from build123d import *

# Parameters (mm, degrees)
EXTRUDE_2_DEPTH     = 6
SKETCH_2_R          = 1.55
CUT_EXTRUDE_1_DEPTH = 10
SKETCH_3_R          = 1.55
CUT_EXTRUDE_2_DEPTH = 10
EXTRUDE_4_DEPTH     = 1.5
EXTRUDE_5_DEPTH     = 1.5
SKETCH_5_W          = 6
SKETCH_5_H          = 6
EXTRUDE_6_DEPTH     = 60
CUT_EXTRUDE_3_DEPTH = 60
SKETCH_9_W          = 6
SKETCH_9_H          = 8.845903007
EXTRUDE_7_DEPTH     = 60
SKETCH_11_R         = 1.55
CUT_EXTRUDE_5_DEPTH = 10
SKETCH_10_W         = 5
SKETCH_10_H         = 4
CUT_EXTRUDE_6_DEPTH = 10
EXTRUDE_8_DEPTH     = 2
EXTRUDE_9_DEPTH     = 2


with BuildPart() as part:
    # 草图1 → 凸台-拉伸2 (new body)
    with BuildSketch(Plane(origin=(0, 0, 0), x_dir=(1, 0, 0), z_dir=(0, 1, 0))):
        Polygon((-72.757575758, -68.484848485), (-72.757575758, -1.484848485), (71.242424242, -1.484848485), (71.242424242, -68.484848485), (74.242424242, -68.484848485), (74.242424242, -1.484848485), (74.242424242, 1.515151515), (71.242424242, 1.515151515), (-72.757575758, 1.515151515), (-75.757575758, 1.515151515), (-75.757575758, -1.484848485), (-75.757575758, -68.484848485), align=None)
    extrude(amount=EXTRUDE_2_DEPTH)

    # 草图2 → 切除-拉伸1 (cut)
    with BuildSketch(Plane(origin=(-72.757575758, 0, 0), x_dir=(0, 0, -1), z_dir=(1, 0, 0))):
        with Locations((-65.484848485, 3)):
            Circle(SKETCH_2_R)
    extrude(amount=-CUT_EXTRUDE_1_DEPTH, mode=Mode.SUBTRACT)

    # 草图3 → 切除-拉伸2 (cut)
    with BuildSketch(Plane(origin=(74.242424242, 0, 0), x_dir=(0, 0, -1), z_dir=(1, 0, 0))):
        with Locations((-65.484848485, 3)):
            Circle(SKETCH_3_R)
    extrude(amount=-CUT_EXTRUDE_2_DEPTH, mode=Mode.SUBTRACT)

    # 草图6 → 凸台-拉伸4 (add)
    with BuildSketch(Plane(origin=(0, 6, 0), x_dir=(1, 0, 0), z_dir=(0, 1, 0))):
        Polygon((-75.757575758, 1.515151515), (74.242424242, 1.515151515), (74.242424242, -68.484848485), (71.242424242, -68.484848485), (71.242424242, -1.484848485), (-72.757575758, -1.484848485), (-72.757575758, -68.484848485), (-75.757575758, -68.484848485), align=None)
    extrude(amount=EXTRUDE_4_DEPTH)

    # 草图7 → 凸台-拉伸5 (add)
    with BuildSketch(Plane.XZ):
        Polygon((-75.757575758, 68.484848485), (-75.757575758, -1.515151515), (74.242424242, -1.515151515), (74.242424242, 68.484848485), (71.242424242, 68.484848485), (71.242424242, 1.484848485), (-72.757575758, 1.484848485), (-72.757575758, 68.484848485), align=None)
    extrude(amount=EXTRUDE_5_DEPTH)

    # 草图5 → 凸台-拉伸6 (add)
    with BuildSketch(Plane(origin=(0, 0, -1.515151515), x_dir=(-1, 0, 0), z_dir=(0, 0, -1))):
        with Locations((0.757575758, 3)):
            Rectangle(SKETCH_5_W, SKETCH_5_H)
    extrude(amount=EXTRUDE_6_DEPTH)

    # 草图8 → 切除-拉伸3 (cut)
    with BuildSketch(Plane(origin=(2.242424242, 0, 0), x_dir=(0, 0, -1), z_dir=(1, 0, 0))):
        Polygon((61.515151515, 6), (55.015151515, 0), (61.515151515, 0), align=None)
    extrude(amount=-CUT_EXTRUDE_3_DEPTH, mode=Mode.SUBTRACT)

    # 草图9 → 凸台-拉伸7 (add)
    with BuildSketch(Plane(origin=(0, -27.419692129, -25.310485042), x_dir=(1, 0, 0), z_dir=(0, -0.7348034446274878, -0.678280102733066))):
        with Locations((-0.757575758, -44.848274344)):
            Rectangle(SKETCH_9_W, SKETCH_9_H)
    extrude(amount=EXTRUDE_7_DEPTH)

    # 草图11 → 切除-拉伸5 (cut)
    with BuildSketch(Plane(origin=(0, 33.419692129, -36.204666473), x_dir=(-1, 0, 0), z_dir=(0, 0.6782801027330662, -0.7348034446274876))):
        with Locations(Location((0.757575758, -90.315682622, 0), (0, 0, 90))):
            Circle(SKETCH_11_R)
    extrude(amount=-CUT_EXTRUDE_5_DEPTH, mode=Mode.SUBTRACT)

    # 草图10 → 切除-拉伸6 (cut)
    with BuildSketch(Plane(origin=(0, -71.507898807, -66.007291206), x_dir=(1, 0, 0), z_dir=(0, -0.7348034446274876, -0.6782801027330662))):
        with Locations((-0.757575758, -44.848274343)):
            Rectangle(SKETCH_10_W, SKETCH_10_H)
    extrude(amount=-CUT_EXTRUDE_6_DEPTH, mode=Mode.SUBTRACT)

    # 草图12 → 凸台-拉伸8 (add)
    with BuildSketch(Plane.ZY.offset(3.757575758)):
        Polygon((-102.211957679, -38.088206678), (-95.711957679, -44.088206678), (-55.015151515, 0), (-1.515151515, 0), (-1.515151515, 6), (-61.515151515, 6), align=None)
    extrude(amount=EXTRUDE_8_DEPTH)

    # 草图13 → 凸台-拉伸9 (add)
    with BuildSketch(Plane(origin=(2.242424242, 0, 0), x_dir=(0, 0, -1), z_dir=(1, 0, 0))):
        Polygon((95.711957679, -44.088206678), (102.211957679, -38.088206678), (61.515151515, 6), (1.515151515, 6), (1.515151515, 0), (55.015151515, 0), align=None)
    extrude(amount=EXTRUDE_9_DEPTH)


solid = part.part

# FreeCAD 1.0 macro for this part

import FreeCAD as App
import Part
import Sketcher

doc = App.newDocument("Part")
body = doc.addObject("PartDesign::Body", "Body")

# Sketch on XZ plane
sketch1 = doc.addObject("Sketcher::SketchObject", "Sketch")
body.addObject(sketch1)
sketch1.AttachmentSupport = (doc.XZ_Plane, [""])
sketch1.MapMode = "FlatFace"
sketch1.addGeometry([
    Part.LineSegment(App.Vector(-72.8, 68.5, 0), App.Vector(-72.8, 1.5, 0)),  # 0
    Part.LineSegment(App.Vector(-72.8, 1.5, 0), App.Vector(71.2, 1.5, 0)),  # 1
    Part.LineSegment(App.Vector(71.2, 1.5, 0), App.Vector(71.2, 68.5, 0)),  # 2
    Part.LineSegment(App.Vector(71.2, 68.5, 0), App.Vector(74.2, 68.5, 0)),  # 3
    Part.LineSegment(App.Vector(74.2, 68.5, 0), App.Vector(74.2, -1.5, 0)),  # 4
    Part.LineSegment(App.Vector(74.2, -1.5, 0), App.Vector(-75.8, -1.5, 0)),  # 5
    Part.LineSegment(App.Vector(-75.8, -1.5, 0), App.Vector(-75.8, 68.5, 0)),  # 6
    Part.LineSegment(App.Vector(-75.8, 68.5, 0), App.Vector(-72.8, 68.5, 0)),  # 7
], False)
sketch1.addConstraint([
    Sketcher.Constraint("Coincident", 0, 2, 1, 1),
    Sketcher.Constraint("Coincident", 1, 2, 2, 1),
    Sketcher.Constraint("Coincident", 2, 2, 3, 1),
    Sketcher.Constraint("Coincident", 3, 2, 4, 1),
    Sketcher.Constraint("Coincident", 4, 2, 5, 1),
    Sketcher.Constraint("Coincident", 5, 2, 6, 1),
    Sketcher.Constraint("Coincident", 6, 2, 7, 1),
    Sketcher.Constraint("Coincident", 7, 2, 0, 1),
    Sketcher.Constraint("Vertical", 0),
    Sketcher.Constraint("Horizontal", 1),
    Sketcher.Constraint("Vertical", 2),
    Sketcher.Constraint("Horizontal", 3),
    Sketcher.Constraint("Vertical", 4),
    Sketcher.Constraint("Horizontal", 5),
    Sketcher.Constraint("Vertical", 6),
    Sketcher.Constraint("Horizontal", 7),
    Sketcher.Constraint("Horizontal", 3, 2, 6, 2),
    Sketcher.Constraint("Equal", 3, 7),
    Sketcher.Constraint("DistanceX", 1, 1, 1, 2, 144.0),
    Sketcher.Constraint("DistanceX", 3, 1, 3, 2, 3.0),
    Sketcher.Constraint("DistanceY", 0, 2, 0, 1, 67.0),
    Sketcher.Constraint("DistanceY", 4, 2, 4, 1, 70.0),
    Sketcher.Constraint("DistanceY", -1, 1, 0, 2, 1.484848),
    Sketcher.Constraint("DistanceX", 0, 2, -1, 1, 72.757576),
])
pad1 = doc.addObject("PartDesign::Pad", "Pad")
body.addObject(pad1)
pad1.Profile = sketch1
pad1.Length = 6
pad1.Reversed = True

# Sketch on YZ plane
sketch2 = doc.addObject("Sketcher::SketchObject", "Sketch001")
body.addObject(sketch2)
sketch2.AttachmentSupport = (doc.YZ_Plane, [""])
sketch2.MapMode = "FlatFace"
sketch2.AttachmentOffset = App.Placement(App.Vector(0, 0, -72.757576), App.Rotation())
sketch2.addGeometry(Part.Circle(App.Vector(3, 65.5, 0), App.Vector(0, 0, 1), 1.6), False)
sketch2.addConstraint([
    Sketcher.Constraint("Diameter", 0, 3.1),
    Sketcher.Constraint("DistanceX", -1, 1, 0, 3, 3.0),
    Sketcher.Constraint("DistanceY", -1, 1, 0, 3, 65.484848),
])
pocket1 = doc.addObject("PartDesign::Pocket", "Pocket")
body.addObject(pocket1)
pocket1.Profile = sketch2
pocket1.Length = 10

# Sketch on YZ plane
sketch3 = doc.addObject("Sketcher::SketchObject", "Sketch002")
body.addObject(sketch3)
sketch3.AttachmentSupport = (doc.YZ_Plane, [""])
sketch3.MapMode = "FlatFace"
sketch3.AttachmentOffset = App.Placement(App.Vector(0, 0, 74.242424), App.Rotation())
sketch3.addGeometry(Part.Circle(App.Vector(3, 65.5, 0), App.Vector(0, 0, 1), 1.6), False)
sketch3.addConstraint([
    Sketcher.Constraint("Diameter", 0, 3.1),
    Sketcher.Constraint("DistanceX", -1, 1, 0, 3, 3.0),
    Sketcher.Constraint("DistanceY", -1, 1, 0, 3, 65.484848),
])
pocket2 = doc.addObject("PartDesign::Pocket", "Pocket001")
body.addObject(pocket2)
pocket2.Profile = sketch3
pocket2.Length = 10

# Sketch on XZ plane
sketch4 = doc.addObject("Sketcher::SketchObject", "Sketch003")
body.addObject(sketch4)
sketch4.AttachmentSupport = (doc.XZ_Plane, [""])
sketch4.MapMode = "FlatFace"
sketch4.AttachmentOffset = App.Placement(App.Vector(0, 0, -6), App.Rotation())
sketch4.addGeometry([
    Part.LineSegment(App.Vector(74.2, -1.5, 0), App.Vector(-75.8, -1.5, 0)),  # 0
    Part.LineSegment(App.Vector(-75.8, -1.5, 0), App.Vector(-75.8, 68.5, 0)),  # 1
    Part.LineSegment(App.Vector(-75.8, 68.5, 0), App.Vector(-72.8, 68.5, 0)),  # 2
    Part.LineSegment(App.Vector(-72.8, 68.5, 0), App.Vector(-72.8, 1.5, 0)),  # 3
    Part.LineSegment(App.Vector(-72.8, 1.5, 0), App.Vector(71.2, 1.5, 0)),  # 4
    Part.LineSegment(App.Vector(71.2, 1.5, 0), App.Vector(71.2, 68.5, 0)),  # 5
    Part.LineSegment(App.Vector(71.2, 68.5, 0), App.Vector(74.2, 68.5, 0)),  # 6
    Part.LineSegment(App.Vector(74.2, 68.5, 0), App.Vector(74.2, -1.5, 0)),  # 7
], False)
sketch4.addConstraint([
    Sketcher.Constraint("Coincident", 0, 2, 1, 1),
    Sketcher.Constraint("Coincident", 1, 2, 2, 1),
    Sketcher.Constraint("Coincident", 2, 2, 3, 1),
    Sketcher.Constraint("Coincident", 3, 2, 4, 1),
    Sketcher.Constraint("Coincident", 4, 2, 5, 1),
    Sketcher.Constraint("Coincident", 5, 2, 6, 1),
    Sketcher.Constraint("Coincident", 6, 2, 7, 1),
    Sketcher.Constraint("Coincident", 7, 2, 0, 1),
    Sketcher.Constraint("Horizontal", 0),
    Sketcher.Constraint("Vertical", 1),
    Sketcher.Constraint("Horizontal", 2),
    Sketcher.Constraint("Vertical", 3),
    Sketcher.Constraint("Horizontal", 4),
    Sketcher.Constraint("Vertical", 5),
    Sketcher.Constraint("Horizontal", 6),
    Sketcher.Constraint("Vertical", 7),
    Sketcher.Constraint("Horizontal", 2, 2, 5, 2),
    Sketcher.Constraint("Equal", 2, 6),
    Sketcher.Constraint("DistanceX", 0, 2, 0, 1, 150.0),
    Sketcher.Constraint("DistanceX", 2, 1, 2, 2, 3.0),
    Sketcher.Constraint("DistanceY", 1, 1, 1, 2, 70.0),
    Sketcher.Constraint("DistanceY", 3, 2, 3, 1, 67.0),
    Sketcher.Constraint("DistanceY", 0, 2, -1, 1, 1.515152),
    Sketcher.Constraint("DistanceX", 0, 2, -1, 1, 75.757576),
])
pad2 = doc.addObject("PartDesign::Pad", "Pad001")
body.addObject(pad2)
pad2.Profile = sketch4
pad2.Length = 1.5
pad2.Reversed = True

# Sketch on XZ plane
sketch5 = doc.addObject("Sketcher::SketchObject", "Sketch004")
body.addObject(sketch5)
sketch5.AttachmentSupport = (doc.XZ_Plane, [""])
sketch5.MapMode = "FlatFace"
sketch5.addGeometry([
    Part.LineSegment(App.Vector(-75.8, 68.5, 0), App.Vector(-75.8, -1.5, 0)),  # 0
    Part.LineSegment(App.Vector(-75.8, -1.5, 0), App.Vector(74.2, -1.5, 0)),  # 1
    Part.LineSegment(App.Vector(74.2, -1.5, 0), App.Vector(74.2, 68.5, 0)),  # 2
    Part.LineSegment(App.Vector(74.2, 68.5, 0), App.Vector(71.2, 68.5, 0)),  # 3
    Part.LineSegment(App.Vector(71.2, 68.5, 0), App.Vector(71.2, 1.5, 0)),  # 4
    Part.LineSegment(App.Vector(71.2, 1.5, 0), App.Vector(-72.8, 1.5, 0)),  # 5
    Part.LineSegment(App.Vector(-72.8, 1.5, 0), App.Vector(-72.8, 68.5, 0)),  # 6
    Part.LineSegment(App.Vector(-72.8, 68.5, 0), App.Vector(-75.8, 68.5, 0)),  # 7
], False)
sketch5.addConstraint([
    Sketcher.Constraint("Coincident", 0, 2, 1, 1),
    Sketcher.Constraint("Coincident", 1, 2, 2, 1),
    Sketcher.Constraint("Coincident", 2, 2, 3, 1),
    Sketcher.Constraint("Coincident", 3, 2, 4, 1),
    Sketcher.Constraint("Coincident", 4, 2, 5, 1),
    Sketcher.Constraint("Coincident", 5, 2, 6, 1),
    Sketcher.Constraint("Coincident", 6, 2, 7, 1),
    Sketcher.Constraint("Coincident", 7, 2, 0, 1),
    Sketcher.Constraint("Vertical", 0),
    Sketcher.Constraint("Horizontal", 1),
    Sketcher.Constraint("Vertical", 2),
    Sketcher.Constraint("Horizontal", 3),
    Sketcher.Constraint("Vertical", 4),
    Sketcher.Constraint("Horizontal", 5),
    Sketcher.Constraint("Vertical", 6),
    Sketcher.Constraint("Horizontal", 7),
    Sketcher.Constraint("Horizontal", 3, 2, 6, 2),
    Sketcher.Constraint("Equal", 3, 7),
    Sketcher.Constraint("DistanceX", 1, 1, 1, 2, 150.0),
    Sketcher.Constraint("DistanceX", 3, 2, 3, 1, 3.0),
    Sketcher.Constraint("DistanceY", 0, 2, 0, 1, 70.0),
    Sketcher.Constraint("DistanceY", 4, 2, 4, 1, 67.0),
    Sketcher.Constraint("DistanceY", 0, 2, -1, 1, 1.515152),
    Sketcher.Constraint("DistanceX", 0, 2, -1, 1, 75.757576),
])
pad3 = doc.addObject("PartDesign::Pad", "Pad002")
body.addObject(pad3)
pad3.Profile = sketch5
pad3.Length = 1.5

# Sketch on XY plane
sketch6 = doc.addObject("Sketcher::SketchObject", "Sketch005")
body.addObject(sketch6)
sketch6.AttachmentSupport = (doc.XY_Plane, [""])
sketch6.MapMode = "FlatFace"
sketch6.AttachmentOffset = App.Placement(App.Vector(0, 0, -1.515152), App.Rotation())
sketch6.addGeometry([
    Part.LineSegment(App.Vector(2, 6, 0), App.Vector(2, 0, 0)),
    Part.LineSegment(App.Vector(2, 0, 0), App.Vector(-4, 0, 0)),
    Part.LineSegment(App.Vector(-4, 0, 0), App.Vector(-4, 6, 0)),
    Part.LineSegment(App.Vector(-4, 6, 0), App.Vector(2, 6, 0)),
], False)
sketch6.addConstraint([
    Sketcher.Constraint("Coincident", 0, 2, 1, 1),
    Sketcher.Constraint("Coincident", 1, 2, 2, 1),
    Sketcher.Constraint("Coincident", 2, 2, 3, 1),
    Sketcher.Constraint("Coincident", 3, 2, 0, 1),
    Sketcher.Constraint("Vertical", 0),
    Sketcher.Constraint("Horizontal", 1),
    Sketcher.Constraint("Vertical", 2),
    Sketcher.Constraint("Horizontal", 3),
    Sketcher.Constraint("PointOnObject", 0, 2, -1),
    Sketcher.Constraint("Equal", 3, 0),
    Sketcher.Constraint("DistanceX", 1, 2, 1, 1, 6.0),
    Sketcher.Constraint("DistanceX", -1, 1, 0, 2, 2.242424),
])
pad4 = doc.addObject("PartDesign::Pad", "Pad003")
body.addObject(pad4)
pad4.Profile = sketch6
pad4.Length = 60
pad4.Reversed = True

# Sketch on YZ plane
sketch7 = doc.addObject("Sketcher::SketchObject", "Sketch006")
body.addObject(sketch7)
sketch7.AttachmentSupport = (doc.YZ_Plane, [""])
sketch7.MapMode = "FlatFace"
sketch7.AttachmentOffset = App.Placement(App.Vector(0, 0, 2.242424), App.Rotation())
sketch7.addGeometry([
    Part.LineSegment(App.Vector(6, -62, 0), App.Vector(0, -55, 0)),
    Part.LineSegment(App.Vector(0, -55, 0), App.Vector(0, -62, 0)),
    Part.LineSegment(App.Vector(0, -62, 0), App.Vector(6, -62, 0)),
], False)
sketch7.addConstraint([
    Sketcher.Constraint("Coincident", 0, 2, 1, 1),
    Sketcher.Constraint("Coincident", 1, 2, 2, 1),
    Sketcher.Constraint("Coincident", 2, 2, 0, 1),
    Sketcher.Constraint("Vertical", 1),
    Sketcher.Constraint("Horizontal", 2),
    Sketcher.Constraint("PointOnObject", 0, 2, -2),
    Sketcher.Constraint("DistanceX", 2, 1, 2, 2, 6.0),
    Sketcher.Constraint("DistanceY", 1, 2, 1, 1, 6.5),
    Sketcher.Constraint("DistanceY", 0, 2, -1, 1, 55.015152),
])
pocket3 = doc.addObject("PartDesign::Pocket", "Pocket002")
body.addObject(pocket3)
pocket3.Profile = sketch7
pocket3.Length = 60

# Sketch on an angled plane
sketch8 = doc.addObject("Sketcher::SketchObject", "Sketch007")
body.addObject(sketch8)
sketch8.Placement = App.Placement(App.Vector(0, -27.419692, -25.310485), App.Rotation(App.Vector(1, 0, 0), App.Vector(0, -0.678280103, 0.734803445), App.Vector(0, -0.734803445, -0.678280103), "ZXY"))
sketch8.addGeometry([
    Part.LineSegment(App.Vector(-4, -40, 0), App.Vector(-4, -49, 0)),
    Part.LineSegment(App.Vector(-4, -49, 0), App.Vector(2, -49, 0)),
    Part.LineSegment(App.Vector(2, -49, 0), App.Vector(2, -40, 0)),
    Part.LineSegment(App.Vector(2, -40, 0), App.Vector(-4, -40, 0)),
], False)
sketch8.addConstraint([
    Sketcher.Constraint("Coincident", 0, 2, 1, 1),
    Sketcher.Constraint("Coincident", 1, 2, 2, 1),
    Sketcher.Constraint("Coincident", 2, 2, 3, 1),
    Sketcher.Constraint("Coincident", 3, 2, 0, 1),
    Sketcher.Constraint("Vertical", 0),
    Sketcher.Constraint("Horizontal", 1),
    Sketcher.Constraint("Vertical", 2),
    Sketcher.Constraint("Horizontal", 3),
    Sketcher.Constraint("DistanceX", 1, 1, 1, 2, 6.0),
    Sketcher.Constraint("DistanceY", 0, 2, 0, 1, 8.845903),
    Sketcher.Constraint("DistanceX", 0, 2, -1, 1, 3.757576),
    Sketcher.Constraint("DistanceY", 0, 2, -1, 1, 49.271226),
])
pad5 = doc.addObject("PartDesign::Pad", "Pad004")
body.addObject(pad5)
pad5.Profile = sketch8
pad5.Length = 60

# Sketch on an angled plane
sketch9 = doc.addObject("Sketcher::SketchObject", "Sketch008")
body.addObject(sketch9)
sketch9.Placement = App.Placement(App.Vector(0, 33.419692, -36.204666), App.Rotation(App.Vector(-1, 0, 0), App.Vector(0, 0.734803445, 0.678280103), App.Vector(0, 0.678280103, -0.734803445), "ZXY"))
sketch9.addGeometry(Part.Circle(App.Vector(0.8, -90.3, 0), App.Vector(0, 0, 1), 1.6), False)
sketch9.addConstraint([
    Sketcher.Constraint("Diameter", 0, 3.1),
    Sketcher.Constraint("DistanceX", -1, 1, 0, 3, 0.757576),
    Sketcher.Constraint("DistanceY", 0, 3, -1, 1, 90.315683),
])
pocket4 = doc.addObject("PartDesign::Pocket", "Pocket003")
body.addObject(pocket4)
pocket4.Profile = sketch9
pocket4.Length = 10

# Sketch on an angled plane
sketch10 = doc.addObject("Sketcher::SketchObject", "Sketch009")
body.addObject(sketch10)
sketch10.Placement = App.Placement(App.Vector(0, -71.507899, -66.007291), App.Rotation(App.Vector(1, 0, 0), App.Vector(0, -0.678280103, 0.734803445), App.Vector(0, -0.734803445, -0.678280103), "ZXY"))
sketch10.addGeometry([
    Part.LineSegment(App.Vector(-3.3, -42.8, 0), App.Vector(-3.3, -46.8, 0)),
    Part.LineSegment(App.Vector(-3.3, -46.8, 0), App.Vector(1.7, -46.8, 0)),
    Part.LineSegment(App.Vector(1.7, -46.8, 0), App.Vector(1.7, -42.8, 0)),
    Part.LineSegment(App.Vector(1.7, -42.8, 0), App.Vector(-3.3, -42.8, 0)),
], False)
sketch10.addConstraint([
    Sketcher.Constraint("Coincident", 0, 2, 1, 1),
    Sketcher.Constraint("Coincident", 1, 2, 2, 1),
    Sketcher.Constraint("Coincident", 2, 2, 3, 1),
    Sketcher.Constraint("Coincident", 3, 2, 0, 1),
    Sketcher.Constraint("Vertical", 0),
    Sketcher.Constraint("Horizontal", 1),
    Sketcher.Constraint("Vertical", 2),
    Sketcher.Constraint("Horizontal", 3),
    Sketcher.Constraint("DistanceX", 1, 1, 1, 2, 5.0),
    Sketcher.Constraint("DistanceY", 0, 2, 0, 1, 4.0),
    Sketcher.Constraint("DistanceX", 0, 2, -1, 1, 3.257576),
    Sketcher.Constraint("DistanceY", 0, 2, -1, 1, 46.848274),
])
pocket5 = doc.addObject("PartDesign::Pocket", "Pocket004")
body.addObject(pocket5)
pocket5.Profile = sketch10
pocket5.Length = 10

# Sketch on YZ plane
sketch11 = doc.addObject("Sketcher::SketchObject", "Sketch010")
body.addObject(sketch11)
sketch11.AttachmentSupport = (doc.YZ_Plane, [""])
sketch11.MapMode = "FlatFace"
sketch11.AttachmentOffset = App.Placement(App.Vector(0, 0, -3.757576), App.Rotation())
sketch11.addGeometry([
    Part.LineSegment(App.Vector(-38, -102, 0), App.Vector(-44, -96, 0)),  # 0
    Part.LineSegment(App.Vector(-44, -96, 0), App.Vector(0, -55, 0)),  # 1
    Part.LineSegment(App.Vector(0, -55, 0), App.Vector(0, -2, 0)),  # 2
    Part.LineSegment(App.Vector(0, -2, 0), App.Vector(6, -2, 0)),  # 3
    Part.LineSegment(App.Vector(6, -2, 0), App.Vector(6, -62, 0)),  # 4
    Part.LineSegment(App.Vector(6, -62, 0), App.Vector(-38, -102, 0)),  # 5
], False)
sketch11.addConstraint([
    Sketcher.Constraint("Coincident", 0, 2, 1, 1),
    Sketcher.Constraint("Coincident", 1, 2, 2, 1),
    Sketcher.Constraint("Coincident", 2, 2, 3, 1),
    Sketcher.Constraint("Coincident", 3, 2, 4, 1),
    Sketcher.Constraint("Coincident", 4, 2, 5, 1),
    Sketcher.Constraint("Coincident", 5, 2, 0, 1),
    Sketcher.Constraint("Vertical", 2),
    Sketcher.Constraint("Horizontal", 3),
    Sketcher.Constraint("Vertical", 4),
    Sketcher.Constraint("PointOnObject", 1, 2, -2),
    Sketcher.Constraint("Perpendicular", 0, 1),
    Sketcher.Constraint("Parallel", 1, 5),
    Sketcher.Constraint("Equal", 1, 5),
    Sketcher.Constraint("DistanceX", 3, 1, 3, 2, 6.0),
    Sketcher.Constraint("DistanceY", 4, 2, 4, 1, 60.0),
    Sketcher.Constraint("Distance", 1, 60.0),
    Sketcher.Constraint("DistanceY", 2, 1, 2, 2, 53.5),
    Sketcher.Constraint("DistanceY", 1, 2, -1, 1, 55.015152),
])
pad6 = doc.addObject("PartDesign::Pad", "Pad005")
body.addObject(pad6)
pad6.Profile = sketch11
pad6.Length = 2
pad6.Reversed = True

# Sketch on YZ plane
sketch12 = doc.addObject("Sketcher::SketchObject", "Sketch011")
body.addObject(sketch12)
sketch12.AttachmentSupport = (doc.YZ_Plane, [""])
sketch12.MapMode = "FlatFace"
sketch12.AttachmentOffset = App.Placement(App.Vector(0, 0, 2.242424), App.Rotation())
sketch12.addGeometry([
    Part.LineSegment(App.Vector(-44, -96, 0), App.Vector(-38, -102, 0)),  # 0
    Part.LineSegment(App.Vector(-38, -102, 0), App.Vector(6, -62, 0)),  # 1
    Part.LineSegment(App.Vector(6, -62, 0), App.Vector(6, -2, 0)),  # 2
    Part.LineSegment(App.Vector(6, -2, 0), App.Vector(0, -2, 0)),  # 3
    Part.LineSegment(App.Vector(0, -2, 0), App.Vector(0, -55, 0)),  # 4
    Part.LineSegment(App.Vector(0, -55, 0), App.Vector(-44, -96, 0)),  # 5
], False)
sketch12.addConstraint([
    Sketcher.Constraint("Coincident", 0, 2, 1, 1),
    Sketcher.Constraint("Coincident", 1, 2, 2, 1),
    Sketcher.Constraint("Coincident", 2, 2, 3, 1),
    Sketcher.Constraint("Coincident", 3, 2, 4, 1),
    Sketcher.Constraint("Coincident", 4, 2, 5, 1),
    Sketcher.Constraint("Coincident", 5, 2, 0, 1),
    Sketcher.Constraint("Vertical", 2),
    Sketcher.Constraint("Horizontal", 3),
    Sketcher.Constraint("Vertical", 4),
    Sketcher.Constraint("PointOnObject", 3, 2, -2),
    Sketcher.Constraint("Perpendicular", 0, 1),
    Sketcher.Constraint("Parallel", 1, 5),
    Sketcher.Constraint("Equal", 1, 5),
    Sketcher.Constraint("DistanceX", 3, 2, 3, 1, 6.0),
    Sketcher.Constraint("DistanceY", 2, 1, 2, 2, 60.0),
    Sketcher.Constraint("Distance", 1, 60.0),
    Sketcher.Constraint("DistanceY", 4, 2, 4, 1, 53.5),
    Sketcher.Constraint("DistanceY", 1, 2, -1, 1, 61.515152),
])
pad7 = doc.addObject("PartDesign::Pad", "Pad006")
body.addObject(pad7)
pad7.Profile = sketch12
pad7.Length = 2

doc.recompute()
